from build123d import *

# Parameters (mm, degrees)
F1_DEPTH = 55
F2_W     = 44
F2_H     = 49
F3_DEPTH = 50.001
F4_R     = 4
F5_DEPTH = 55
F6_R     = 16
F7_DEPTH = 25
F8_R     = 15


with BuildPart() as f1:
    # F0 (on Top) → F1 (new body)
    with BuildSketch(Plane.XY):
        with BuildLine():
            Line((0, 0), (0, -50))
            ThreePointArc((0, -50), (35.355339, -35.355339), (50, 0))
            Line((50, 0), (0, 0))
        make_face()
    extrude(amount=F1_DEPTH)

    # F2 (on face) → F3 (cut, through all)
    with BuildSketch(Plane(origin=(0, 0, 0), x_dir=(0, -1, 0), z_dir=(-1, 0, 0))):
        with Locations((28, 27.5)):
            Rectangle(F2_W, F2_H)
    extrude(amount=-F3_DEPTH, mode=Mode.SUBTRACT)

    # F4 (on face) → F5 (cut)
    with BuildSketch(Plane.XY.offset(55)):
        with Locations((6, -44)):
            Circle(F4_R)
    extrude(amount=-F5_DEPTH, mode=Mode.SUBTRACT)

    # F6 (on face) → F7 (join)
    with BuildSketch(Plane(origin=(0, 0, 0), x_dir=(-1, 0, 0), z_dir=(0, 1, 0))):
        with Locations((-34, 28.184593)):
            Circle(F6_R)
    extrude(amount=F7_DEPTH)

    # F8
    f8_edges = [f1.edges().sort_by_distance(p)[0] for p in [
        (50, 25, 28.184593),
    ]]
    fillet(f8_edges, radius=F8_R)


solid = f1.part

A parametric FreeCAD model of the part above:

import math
import FreeCAD as App
import Part
import Sketcher

V = App.Vector
Q = App.Units.Quantity


def edges_at(feature, points):
    """Names of the edges that pass closest to the given points."""
    edges = feature.Shape.Edges
    near = lambda p: min(range(len(edges)), key=lambda i: edges[i].distToShape(Part.Vertex(*p))[0])
    return sorted({f"Edge{near(p) + 1}" for p in points})

doc = App.newDocument("Part")
body = doc.addObject("PartDesign::Body", "Body")

sketch1 = body.newObject("Sketcher::SketchObject", "Sketch")
sketch1.AttachmentSupport = (doc.getObject("XY_Plane"), [""])
sketch1.MapMode = "FlatFace"
sketch1.addGeometry([
    Part.LineSegment(V(0, 0, 0), V(0, -50, 0)),
    Part.ArcOfCircle(Part.Circle(V(0, 0, 0), V(0, 0, 1), 50), math.radians(-90), math.radians(0)),
    Part.LineSegment(V(50, 0, 0), V(0, 0, 0)),
], False)
sketch1.addConstraint([
    Sketcher.Constraint("Coincident", 0, 2, 1, 1),
    Sketcher.Constraint("Coincident", 1, 2, 2, 1),
    Sketcher.Constraint("Coincident", 2, 2, 0, 1),
    Sketcher.Constraint("Vertical", 0),
    Sketcher.Constraint("Horizontal", 2),
    Sketcher.Constraint("Coincident", 1, 3, -1, 1),
    Sketcher.Constraint("Coincident", 2, 2, -1, 1),
    Sketcher.Constraint("Radius", 1, Q("50 mm")),
])
pad1 = body.newObject("PartDesign::Pad", "Pad")
pad1.Profile = sketch1
pad1.Length = 55

sketch2 = body.newObject("Sketcher::SketchObject", "Sketch001")
sketch2.AttachmentSupport = (doc.getObject("YZ_Plane"), [""])
sketch2.MapMode = "FlatFace"
sketch2.addGeometry([
    Part.LineSegment(V(-6, 52, 0), V(-6, 3, 0)),
    Part.LineSegment(V(-6, 3, 0), V(-50, 3, 0)),
    Part.LineSegment(V(-50, 3, 0), V(-50, 52, 0)),
    Part.LineSegment(V(-50, 52, 0), V(-6, 52, 0)),
], False)
sketch2.addConstraint([
    Sketcher.Constraint("Coincident", 0, 2, 1, 1),
    Sketcher.Constraint("Coincident", 1, 2, 2, 1),
    Sketcher.Constraint("Coincident", 2, 2, 3, 1),
    Sketcher.Constraint("Coincident", 3, 2, 0, 1),
    Sketcher.Constraint("Vertical", 0),
    Sketcher.Constraint("Horizontal", 1),
    Sketcher.Constraint("Vertical", 2),
    Sketcher.Constraint("Horizontal", 3),
    Sketcher.Constraint("DistanceX", 1, 2, 1, 1, Q("44 mm")),
    Sketcher.Constraint("DistanceY", 0, 2, 0, 1, Q("49 mm")),
    Sketcher.Constraint("DistanceX", 0, 2, -1, 1, Q("6 mm")),
    Sketcher.Constraint("DistanceY", -1, 1, 0, 2, Q("3 mm")),
])
pocket1 = body.newObject("PartDesign::Pocket", "Pocket")
pocket1.Profile = sketch2
pocket1.Type = "ThroughAll"
pocket1.Reversed = True

sketch3 = body.newObject("Sketcher::SketchObject", "Sketch002")
sketch3.AttachmentSupport = (doc.getObject("XY_Plane"), [""])
sketch3.MapMode = "FlatFace"
sketch3.AttachmentOffset = App.Placement(V(0, 0, 55), App.Rotation())
sketch3.addGeometry(Part.Circle(V(6, -44, 0), V(0, 0, 1), 4), False)
sketch3.addConstraint([
    Sketcher.Constraint("Diameter", 0, Q("8 mm")),
    Sketcher.Constraint("DistanceX", -1, 1, 0, 3, Q("6 mm")),
    Sketcher.Constraint("DistanceY", 0, 3, -1, 1, Q("44 mm")),
])
pocket2 = body.newObject("PartDesign::Pocket", "Pocket001")
pocket2.Profile = sketch3
pocket2.Length = 55

sketch4 = body.newObject("Sketcher::SketchObject", "Sketch003")
sketch4.AttachmentSupport = (doc.getObject("XZ_Plane"), [""])
sketch4.MapMode = "FlatFace"
sketch4.addGeometry(Part.Circle(V(34, 28.184593, 0), V(0, 0, 1), 16), False)
sketch4.addConstraint([
    Sketcher.Constraint("Diameter", 0, Q("32 mm")),
    Sketcher.Constraint("DistanceX", -1, 1, 0, 3, Q("34 mm")),
    Sketcher.Constraint("DistanceY", -1, 1, 0, 3, Q("28.184593 mm")),
])
pad2 = body.newObject("PartDesign::Pad", "Pad001")
pad2.Profile = sketch4
pad2.Length = 25
pad2.Reversed = True
doc.recompute()

fillet = body.newObject("PartDesign::Fillet", "Fillet")
fillet.Base = (pad2, edges_at(pad2, [(50, 25, 28.185)]))
fillet.Radius = 15

doc.recompute()
